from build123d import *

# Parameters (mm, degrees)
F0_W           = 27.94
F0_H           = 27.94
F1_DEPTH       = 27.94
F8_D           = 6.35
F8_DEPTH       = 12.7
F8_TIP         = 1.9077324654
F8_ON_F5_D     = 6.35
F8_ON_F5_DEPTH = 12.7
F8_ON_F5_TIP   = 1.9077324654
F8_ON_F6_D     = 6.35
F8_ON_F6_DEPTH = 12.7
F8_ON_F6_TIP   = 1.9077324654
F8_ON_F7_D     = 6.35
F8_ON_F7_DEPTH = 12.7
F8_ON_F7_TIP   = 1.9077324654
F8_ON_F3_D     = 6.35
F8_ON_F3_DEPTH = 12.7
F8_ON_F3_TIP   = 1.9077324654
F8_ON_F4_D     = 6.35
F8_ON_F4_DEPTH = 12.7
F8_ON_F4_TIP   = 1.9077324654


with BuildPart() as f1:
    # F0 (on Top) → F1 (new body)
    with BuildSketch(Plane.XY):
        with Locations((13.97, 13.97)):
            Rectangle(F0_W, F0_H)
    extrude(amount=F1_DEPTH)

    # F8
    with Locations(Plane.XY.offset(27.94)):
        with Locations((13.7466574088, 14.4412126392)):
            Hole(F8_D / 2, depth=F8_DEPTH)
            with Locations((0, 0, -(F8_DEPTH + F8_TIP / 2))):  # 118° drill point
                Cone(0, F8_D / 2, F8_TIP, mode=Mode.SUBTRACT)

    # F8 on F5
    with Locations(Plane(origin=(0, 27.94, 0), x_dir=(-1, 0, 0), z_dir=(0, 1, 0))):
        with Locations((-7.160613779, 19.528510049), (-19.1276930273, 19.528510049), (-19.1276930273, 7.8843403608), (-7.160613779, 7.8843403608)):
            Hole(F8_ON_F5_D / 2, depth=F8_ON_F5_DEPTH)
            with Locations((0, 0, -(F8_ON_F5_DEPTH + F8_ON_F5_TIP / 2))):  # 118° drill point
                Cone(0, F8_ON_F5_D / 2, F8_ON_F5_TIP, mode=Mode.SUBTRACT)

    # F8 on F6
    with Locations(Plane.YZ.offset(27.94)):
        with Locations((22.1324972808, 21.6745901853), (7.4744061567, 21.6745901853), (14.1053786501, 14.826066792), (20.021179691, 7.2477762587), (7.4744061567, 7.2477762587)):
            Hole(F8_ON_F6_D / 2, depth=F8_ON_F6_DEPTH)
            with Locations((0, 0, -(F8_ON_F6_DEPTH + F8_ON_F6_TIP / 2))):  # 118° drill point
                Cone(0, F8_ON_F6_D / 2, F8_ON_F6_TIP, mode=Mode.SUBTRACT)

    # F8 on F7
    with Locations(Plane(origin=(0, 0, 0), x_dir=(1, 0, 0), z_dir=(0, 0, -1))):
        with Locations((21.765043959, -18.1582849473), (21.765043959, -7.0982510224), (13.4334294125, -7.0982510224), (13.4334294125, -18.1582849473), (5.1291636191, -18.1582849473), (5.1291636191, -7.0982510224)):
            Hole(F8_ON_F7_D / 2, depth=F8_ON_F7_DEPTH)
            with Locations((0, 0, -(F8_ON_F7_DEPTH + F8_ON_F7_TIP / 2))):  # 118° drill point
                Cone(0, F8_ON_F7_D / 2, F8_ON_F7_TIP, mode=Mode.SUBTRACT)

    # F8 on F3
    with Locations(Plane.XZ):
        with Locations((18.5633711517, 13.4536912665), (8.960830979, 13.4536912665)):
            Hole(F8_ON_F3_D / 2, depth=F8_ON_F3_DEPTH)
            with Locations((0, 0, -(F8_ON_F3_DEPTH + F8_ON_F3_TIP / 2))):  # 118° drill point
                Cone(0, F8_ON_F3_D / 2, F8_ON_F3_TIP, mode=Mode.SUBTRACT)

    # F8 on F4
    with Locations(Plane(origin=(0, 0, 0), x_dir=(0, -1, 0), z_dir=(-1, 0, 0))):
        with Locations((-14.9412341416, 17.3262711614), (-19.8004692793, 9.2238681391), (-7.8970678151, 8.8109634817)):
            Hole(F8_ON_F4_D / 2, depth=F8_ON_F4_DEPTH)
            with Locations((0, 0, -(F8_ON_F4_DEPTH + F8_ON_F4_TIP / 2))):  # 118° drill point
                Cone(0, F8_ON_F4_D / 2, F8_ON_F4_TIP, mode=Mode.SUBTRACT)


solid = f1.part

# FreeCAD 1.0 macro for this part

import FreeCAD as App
import Part
import Sketcher
Q = App.Units.Quantity


def add_polygon(sketch, points):
    """Adds a closed chain of lines whose ends are joined by coincident constraints."""
    first, n = sketch.GeometryCount, len(points)
    for a, b in zip(points, points[1:] + points[:1]):
        sketch.addGeometry(Part.LineSegment(App.Vector(*a, 0), App.Vector(*b, 0)), False)
    for i in range(n):
        sketch.addConstraint(Sketcher.Constraint("Coincident", first + i, 2, first + (i + 1) % n, 1))

doc = App.newDocument("Part")
body = doc.addObject("PartDesign::Body", "Body")

# Sketch on XY plane
sketch1 = body.newObject("Sketcher::SketchObject", "Sketch")
sketch1.AttachmentSupport = (doc.getObject("XY_Plane"), [""])
sketch1.MapMode = "FlatFace"
add_polygon(sketch1, [(0, 28), (0, 0), (28, 0), (28, 28)])  # lines 0-3
sketch1.addConstraint([
    Sketcher.Constraint("Vertical", 0),
    Sketcher.Constraint("Horizontal", 1),
    Sketcher.Constraint("Vertical", 2),
    Sketcher.Constraint("Horizontal", 3),
    Sketcher.Constraint("Coincident", 0, 2, -1, 1),
    Sketcher.Constraint("Equal", 3, 0),
    Sketcher.Constraint("DistanceX", 1, 1, 1, 2, Q("1.1 in")),
])
pad1 = body.newObject("PartDesign::Pad", "Pad")
pad1.Profile = sketch1
pad1.Length = Q("1.1 in")

# Sketch on XY plane
sketch2 = body.newObject("Sketcher::SketchObject", "Sketch001")
sketch2.AttachmentSupport = (doc.getObject("XY_Plane"), [""])
sketch2.MapMode = "FlatFace"
sketch2.AttachmentOffset = App.Placement(App.Vector(0, 0, 1.1 * 25.4), App.Rotation())
sketch2.addGeometry(Part.Circle(App.Vector(13.7, 14.4, 0), App.Vector(0, 0, 1), 3.2), False)
sketch2.addConstraint([
    Sketcher.Constraint("Diameter", 0, Q("0.25 in")),
    Sketcher.Constraint("DistanceX", -1, 1, 0, 3, 13.746657),
    Sketcher.Constraint("DistanceY", -1, 1, 0, 3, 14.441213),
])
doc.recompute()
hole = body.newObject("PartDesign::Hole", "Hole")
hole.Profile = sketch2
hole.ThreadType = "None"
hole.Diameter = Q("0.25 in")
hole.DepthType = "Dimension"
hole.Depth = Q("0.5 in")
hole.DrillPoint = "Angled"
hole.DrillPointAngle = 118

# Sketch on XZ plane
sketch3 = body.newObject("Sketcher::SketchObject", "Sketch002")
sketch3.AttachmentSupport = (doc.getObject("XZ_Plane"), [""])
sketch3.MapMode = "FlatFace"
sketch3.AttachmentOffset = App.Placement(App.Vector(0, 0, -1.1 * 25.4), App.Rotation())
sketch3.addGeometry([
    Part.Circle(App.Vector(7.2, 19.5, 0), App.Vector(0, 0, 1), 3.2),
    Part.Circle(App.Vector(19.1, 19.5, 0), App.Vector(0, 0, 1), 3.2),
    Part.Circle(App.Vector(19.1, 7.9, 0), App.Vector(0, 0, 1), 3.2),
    Part.Circle(App.Vector(7.2, 7.9, 0), App.Vector(0, 0, 1), 3.2),
], False)
sketch3.addConstraint([
    Sketcher.Constraint("Equal", 0, 1),
    Sketcher.Constraint("Equal", 1, 2),
    Sketcher.Constraint("Equal", 2, 3),
    Sketcher.Constraint("Horizontal", 0, 3, 1, 3),
    Sketcher.Constraint("Horizontal", 2, 3, 3, 3),
    Sketcher.Constraint("Vertical", 1, 3, 2, 3),
    Sketcher.Constraint("Vertical", 0, 3, 3, 3),
    Sketcher.Constraint("Diameter", 0, Q("0.25 in")),
    Sketcher.Constraint("DistanceY", -1, 1, 0, 3, 19.52851),
    Sketcher.Constraint("DistanceY", -1, 1, 2, 3, 7.88434),
    Sketcher.Constraint("DistanceX", 0, 3, 1, 3, 11.967079),
    Sketcher.Constraint("DistanceX", -1, 1, 0, 3, 7.160614),
])
doc.recompute()
hole2 = body.newObject("PartDesign::Hole", "Hole001")
hole2.Profile = sketch3
hole2.ThreadType = "None"
hole2.Diameter = Q("0.25 in")
hole2.DepthType = "Dimension"
hole2.Depth = Q("0.5 in")
hole2.DrillPoint = "Angled"
hole2.DrillPointAngle = 118
hole2.Reversed = True

# Sketch on YZ plane
sketch4 = body.newObject("Sketcher::SketchObject", "Sketch003")
sketch4.AttachmentSupport = (doc.getObject("YZ_Plane"), [""])
sketch4.MapMode = "FlatFace"
sketch4.AttachmentOffset = App.Placement(App.Vector(0, 0, 1.1 * 25.4), App.Rotation())
sketch4.addGeometry([
    Part.Circle(App.Vector(22.1, 21.7, 0), App.Vector(0, 0, 1), 3.2),  # 0
    Part.Circle(App.Vector(7.5, 21.7, 0), App.Vector(0, 0, 1), 3.2),  # 1
    Part.Circle(App.Vector(14.1, 14.8, 0), App.Vector(0, 0, 1), 3.2),  # 2
    Part.Circle(App.Vector(20, 7.2, 0), App.Vector(0, 0, 1), 3.2),  # 3
    Part.Circle(App.Vector(7.5, 7.2, 0), App.Vector(0, 0, 1), 3.2),  # 4
], False)
sketch4.addConstraint([
    Sketcher.Constraint("Equal", 0, 1),
    Sketcher.Constraint("Equal", 1, 2),
    Sketcher.Constraint("Equal", 2, 3),
    Sketcher.Constraint("Equal", 3, 4),
    Sketcher.Constraint("Horizontal", 0, 3, 1, 3),
    Sketcher.Constraint("Horizontal", 3, 3, 4, 3),
    Sketcher.Constraint("Vertical", 1, 3, 4, 3),
    Sketcher.Constraint("Diameter", 0, Q("0.25 in")),
    Sketcher.Constraint("DistanceX", 2, 3, 3, 3, 5.915801),
    Sketcher.Constraint("DistanceY", -1, 1, 0, 3, 21.67459),
    Sketcher.Constraint("DistanceX", -1, 1, 2, 3, 14.105379),
    Sketcher.Constraint("DistanceX", 1, 3, 0, 3, 14.658091),
    Sketcher.Constraint("DistanceX", 2, 3, 0, 3, 8.027119),
    Sketcher.Constraint("DistanceY", 3, 3, 2, 3, 7.578291),
    Sketcher.Constraint("DistanceY", -1, 1, 2, 3, 14.826067),
])
doc.recompute()
hole3 = body.newObject("PartDesign::Hole", "Hole002")
hole3.Profile = sketch4
hole3.ThreadType = "None"
hole3.Diameter = Q("0.25 in")
hole3.DepthType = "Dimension"
hole3.Depth = Q("0.5 in")
hole3.DrillPoint = "Angled"
hole3.DrillPointAngle = 118

# Sketch on XY plane
sketch5 = body.newObject("Sketcher::SketchObject", "Sketch004")
sketch5.AttachmentSupport = (doc.getObject("XY_Plane"), [""])
sketch5.MapMode = "FlatFace"
sketch5.addGeometry([
    Part.Circle(App.Vector(21.8, 18.2, 0), App.Vector(0, 0, 1), 3.2),  # 0
    Part.Circle(App.Vector(21.8, 7.1, 0), App.Vector(0, 0, 1), 3.2),  # 1
    Part.Circle(App.Vector(13.4, 7.1, 0), App.Vector(0, 0, 1), 3.2),  # 2
    Part.Circle(App.Vector(13.4, 18.2, 0), App.Vector(0, 0, 1), 3.2),  # 3
    Part.Circle(App.Vector(5.1, 18.2, 0), App.Vector(0, 0, 1), 3.2),  # 4
    Part.Circle(App.Vector(5.1, 7.1, 0), App.Vector(0, 0, 1), 3.2),  # 5
], False)
sketch5.addConstraint([
    Sketcher.Constraint("Equal", 0, 1),
    Sketcher.Constraint("Equal", 1, 2),
    Sketcher.Constraint("Equal", 2, 3),
    Sketcher.Constraint("Equal", 3, 4),
    Sketcher.Constraint("Equal", 4, 5),
    Sketcher.Constraint("Horizontal", 1, 3, 2, 3),
    Sketcher.Constraint("Horizontal", 0, 3, 3, 3),
    Sketcher.Constraint("Horizontal", 3, 3, 4, 3),
    Sketcher.Constraint("Horizontal", 2, 3, 5, 3),
    Sketcher.Constraint("Vertical", 0, 3, 1, 3),
    Sketcher.Constraint("Vertical", 2, 3, 3, 3),
    Sketcher.Constraint("Vertical", 4, 3, 5, 3),
    Sketcher.Constraint("Diameter", 0, Q("0.25 in")),
    Sketcher.Constraint("DistanceY", -1, 1, 1, 3, 7.098251),
    Sketcher.Constraint("DistanceX", -1, 1, 2, 3, 13.433429),
    Sketcher.Constraint("DistanceX", 4, 3, 0, 3, 16.63588),
    Sketcher.Constraint("DistanceX", -1, 1, 0, 3, 21.765044),
    Sketcher.Constraint("DistanceY", -1, 1, 0, 3, 18.158285),
])
doc.recompute()
hole4 = body.newObject("PartDesign::Hole", "Hole003")
hole4.Profile = sketch5
hole4.ThreadType = "None"
hole4.Diameter = Q("0.25 in")
hole4.DepthType = "Dimension"
hole4.Depth = Q("0.5 in")
hole4.DrillPoint = "Angled"
hole4.DrillPointAngle = 118
hole4.Reversed = True

# Sketch on XZ plane
sketch6 = body.newObject("Sketcher::SketchObject", "Sketch005")
sketch6.AttachmentSupport = (doc.getObject("XZ_Plane"), [""])
sketch6.MapMode = "FlatFace"
sketch6.addGeometry([
    Part.Circle(App.Vector(18.6, 13.5, 0), App.Vector(0, 0, 1), 3.2),
    Part.Circle(App.Vector(9, 13.5, 0), App.Vector(0, 0, 1), 3.2),
], False)
sketch6.addConstraint([
    Sketcher.Constraint("Equal", 0, 1),
    Sketcher.Constraint("Horizontal", 0, 3, 1, 3),
    Sketcher.Constraint("Diameter", 0, Q("0.25 in")),
    Sketcher.Constraint("DistanceX", -1, 1, 0, 3, 18.563371),
    Sketcher.Constraint("DistanceY", -1, 1, 0, 3, 13.453691),
    Sketcher.Constraint("DistanceX", -1, 1, 1, 3, 8.960831),
])
doc.recompute()
hole5 = body.newObject("PartDesign::Hole", "Hole004")
hole5.Profile = sketch6
hole5.ThreadType = "None"
hole5.Diameter = Q("0.25 in")
hole5.DepthType = "Dimension"
hole5.Depth = Q("0.5 in")
hole5.DrillPoint = "Angled"
hole5.DrillPointAngle = 118

# Sketch on YZ plane
sketch7 = body.newObject("Sketcher::SketchObject", "Sketch006")
sketch7.AttachmentSupport = (doc.getObject("YZ_Plane"), [""])
sketch7.MapMode = "FlatFace"
sketch7.addGeometry([
    Part.Circle(App.Vector(14.9, 17.3, 0), App.Vector(0, 0, 1), 3.2),
    Part.Circle(App.Vector(19.8, 9.2, 0), App.Vector(0, 0, 1), 3.2),
    Part.Circle(App.Vector(7.9, 8.8, 0), App.Vector(0, 0, 1), 3.2),
], False)
sketch7.addConstraint([
    Sketcher.Constraint("Equal", 0, 1),
    Sketcher.Constraint("Equal", 1, 2),
    Sketcher.Constraint("Diameter", 0, Q("0.25 in")),
    Sketcher.Constraint("DistanceX", 2, 3, 1, 3, 11.903401),
    Sketcher.Constraint("DistanceY", -1, 1, 0, 3, 17.326271),
    Sketcher.Constraint("DistanceX", -1, 1, 1, 3, 19.800469),
    Sketcher.Constraint("DistanceY", -1, 1, 1, 3, 9.223868),
    Sketcher.Constraint("DistanceX", -1, 1, 0, 3, 14.941234),
    Sketcher.Constraint("DistanceY", -1, 1, 2, 3, 8.810963),
])
doc.recompute()
hole6 = body.newObject("PartDesign::Hole", "Hole005")
hole6.Profile = sketch7
hole6.ThreadType = "None"
hole6.Diameter = Q("0.25 in")
hole6.DepthType = "Dimension"
hole6.Depth = Q("0.5 in")
hole6.DrillPoint = "Angled"
hole6.DrillPointAngle = 118
hole6.Reversed = True

doc.recompute()
